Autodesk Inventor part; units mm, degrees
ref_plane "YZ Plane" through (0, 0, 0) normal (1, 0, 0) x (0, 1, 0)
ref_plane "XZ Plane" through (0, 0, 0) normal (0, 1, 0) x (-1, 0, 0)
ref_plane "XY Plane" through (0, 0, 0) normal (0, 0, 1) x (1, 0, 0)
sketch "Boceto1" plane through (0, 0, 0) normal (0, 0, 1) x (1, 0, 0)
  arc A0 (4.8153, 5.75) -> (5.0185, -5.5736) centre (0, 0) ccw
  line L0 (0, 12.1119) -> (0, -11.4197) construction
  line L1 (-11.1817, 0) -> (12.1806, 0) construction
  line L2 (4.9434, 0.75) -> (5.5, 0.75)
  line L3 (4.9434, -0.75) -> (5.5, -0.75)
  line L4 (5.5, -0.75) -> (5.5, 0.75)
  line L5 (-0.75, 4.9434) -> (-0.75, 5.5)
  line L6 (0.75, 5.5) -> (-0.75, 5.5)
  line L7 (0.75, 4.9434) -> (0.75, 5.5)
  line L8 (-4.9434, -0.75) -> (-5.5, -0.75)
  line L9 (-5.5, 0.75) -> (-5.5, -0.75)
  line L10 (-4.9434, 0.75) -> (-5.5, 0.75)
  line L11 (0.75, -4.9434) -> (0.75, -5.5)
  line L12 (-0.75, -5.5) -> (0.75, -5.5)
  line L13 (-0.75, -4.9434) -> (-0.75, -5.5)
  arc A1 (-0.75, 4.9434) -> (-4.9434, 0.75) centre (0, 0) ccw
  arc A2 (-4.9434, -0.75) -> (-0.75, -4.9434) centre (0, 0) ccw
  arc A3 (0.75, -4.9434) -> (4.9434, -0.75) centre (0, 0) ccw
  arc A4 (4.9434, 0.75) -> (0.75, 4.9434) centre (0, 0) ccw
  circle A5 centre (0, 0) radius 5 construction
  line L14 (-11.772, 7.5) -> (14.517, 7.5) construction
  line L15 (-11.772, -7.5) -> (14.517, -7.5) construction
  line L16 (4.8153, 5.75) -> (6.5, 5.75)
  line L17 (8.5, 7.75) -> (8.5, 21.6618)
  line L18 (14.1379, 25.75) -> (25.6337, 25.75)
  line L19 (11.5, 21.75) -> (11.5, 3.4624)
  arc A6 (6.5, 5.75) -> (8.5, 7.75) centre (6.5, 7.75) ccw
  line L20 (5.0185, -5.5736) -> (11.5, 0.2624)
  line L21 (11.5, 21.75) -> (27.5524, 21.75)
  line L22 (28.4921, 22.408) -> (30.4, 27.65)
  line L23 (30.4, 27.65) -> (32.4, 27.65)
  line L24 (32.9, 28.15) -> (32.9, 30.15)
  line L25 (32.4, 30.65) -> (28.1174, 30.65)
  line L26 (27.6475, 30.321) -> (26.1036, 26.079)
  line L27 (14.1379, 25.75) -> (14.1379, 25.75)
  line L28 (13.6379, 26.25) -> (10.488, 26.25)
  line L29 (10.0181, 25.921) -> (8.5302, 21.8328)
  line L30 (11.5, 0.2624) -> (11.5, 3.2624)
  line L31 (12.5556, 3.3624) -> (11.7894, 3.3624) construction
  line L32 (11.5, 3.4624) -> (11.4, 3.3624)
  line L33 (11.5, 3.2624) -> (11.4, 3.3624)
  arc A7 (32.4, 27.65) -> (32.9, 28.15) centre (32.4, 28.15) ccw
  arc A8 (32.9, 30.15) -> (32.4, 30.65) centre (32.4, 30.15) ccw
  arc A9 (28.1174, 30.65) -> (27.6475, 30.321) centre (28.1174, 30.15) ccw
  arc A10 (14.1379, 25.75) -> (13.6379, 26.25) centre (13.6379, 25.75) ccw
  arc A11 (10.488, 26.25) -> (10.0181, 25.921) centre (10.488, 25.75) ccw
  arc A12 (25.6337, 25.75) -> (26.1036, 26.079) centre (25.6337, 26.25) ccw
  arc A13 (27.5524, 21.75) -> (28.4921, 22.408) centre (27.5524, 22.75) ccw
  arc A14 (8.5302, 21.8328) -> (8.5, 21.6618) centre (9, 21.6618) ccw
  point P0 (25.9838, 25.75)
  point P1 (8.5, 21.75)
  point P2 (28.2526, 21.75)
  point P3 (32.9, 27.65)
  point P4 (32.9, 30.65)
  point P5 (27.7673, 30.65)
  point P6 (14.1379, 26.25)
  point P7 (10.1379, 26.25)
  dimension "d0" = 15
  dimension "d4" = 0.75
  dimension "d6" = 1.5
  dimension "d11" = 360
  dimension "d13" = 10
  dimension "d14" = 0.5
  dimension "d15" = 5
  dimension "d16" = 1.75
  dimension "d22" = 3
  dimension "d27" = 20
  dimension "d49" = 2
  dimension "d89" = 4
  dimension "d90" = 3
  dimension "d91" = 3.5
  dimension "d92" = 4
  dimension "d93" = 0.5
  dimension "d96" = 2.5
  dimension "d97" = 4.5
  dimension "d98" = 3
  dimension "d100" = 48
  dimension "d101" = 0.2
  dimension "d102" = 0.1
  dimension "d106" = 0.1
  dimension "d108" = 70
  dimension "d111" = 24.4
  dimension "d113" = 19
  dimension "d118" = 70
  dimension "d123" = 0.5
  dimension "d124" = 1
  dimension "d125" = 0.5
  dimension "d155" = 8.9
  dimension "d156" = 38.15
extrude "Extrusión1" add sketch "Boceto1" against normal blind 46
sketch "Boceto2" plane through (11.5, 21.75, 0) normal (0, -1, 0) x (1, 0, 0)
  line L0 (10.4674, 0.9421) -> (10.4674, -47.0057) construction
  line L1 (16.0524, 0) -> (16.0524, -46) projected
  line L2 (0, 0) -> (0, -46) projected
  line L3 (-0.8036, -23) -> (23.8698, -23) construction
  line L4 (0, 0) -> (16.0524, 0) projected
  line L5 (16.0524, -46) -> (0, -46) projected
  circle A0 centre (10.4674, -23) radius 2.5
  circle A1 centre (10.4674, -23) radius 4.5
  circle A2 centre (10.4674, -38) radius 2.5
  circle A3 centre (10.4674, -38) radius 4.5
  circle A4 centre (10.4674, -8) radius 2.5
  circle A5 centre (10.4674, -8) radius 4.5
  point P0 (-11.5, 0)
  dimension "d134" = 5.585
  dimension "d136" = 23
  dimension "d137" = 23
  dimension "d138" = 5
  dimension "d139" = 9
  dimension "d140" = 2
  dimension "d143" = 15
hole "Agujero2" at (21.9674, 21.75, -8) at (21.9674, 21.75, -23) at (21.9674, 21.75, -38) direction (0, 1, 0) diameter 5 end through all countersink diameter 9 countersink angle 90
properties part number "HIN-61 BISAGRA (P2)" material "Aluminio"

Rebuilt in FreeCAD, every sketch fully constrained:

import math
import FreeCAD as App
import Part
import Sketcher
Q = App.Units.Quantity

doc = App.newDocument("Part")
params = doc.addObject("Spreadsheet::Sheet", "Params")
for row, (alias, value) in enumerate([
    ("sketch1_radius", "1 mm"),
    ("sketch1_radius2", "2 mm"),
    ("sketch1_radius3", "5 mm"),
    ("sketch1_radius4", "7.5 mm"),
    ("sketch1_radius5", "0.5 mm"),
    ("pad1_length", "46 mm"),
    ("sketch2_diameter", "5 mm"),
    ("hole_diameter", "5 mm"),
    ("hole_csink_diameter", "9 mm"),
], start=1):
    params.set(f"A{row}", alias)
    params.set(f"B{row}", "=" + value)
    params.setAlias(f"B{row}", alias)

body = doc.addObject("PartDesign::Body", "Body")

sketch1 = doc.addObject("Sketcher::SketchObject", "Sketch")
body.addObject(sketch1)
sketch1.AttachmentSupport = (doc.XY_Plane, [""])
sketch1.MapMode = "FlatFace"
sketch1.addGeometry([
    Part.LineSegment(App.Vector(6.5, 5.75, 0), App.Vector(4.8153, 5.75, 0)),
    Part.ArcOfCircle(Part.Circle(App.Vector(0, 0, 0), App.Vector(0, 0, 1), 7.499974), math.radians(50.05573), math.radians(312.000046)),
    Part.LineSegment(App.Vector(5.0185, -5.5736, 0), App.Vector(11.5, 0.2624, 0)),
    Part.LineSegment(App.Vector(11.5, 0.2624, 0), App.Vector(11.5, 3.2624, 0)),
    Part.LineSegment(App.Vector(11.5, 3.2624, 0), App.Vector(11.4, 3.3624, 0)),
    Part.LineSegment(App.Vector(11.4, 3.3624, 0), App.Vector(11.5, 3.4624, 0)),
    Part.LineSegment(App.Vector(11.5, 3.4624, 0), App.Vector(11.5, 21.75, 0)),
    Part.LineSegment(App.Vector(11.5, 21.75, 0), App.Vector(27.5524, 21.75, 0)),
    Part.ArcOfCircle(Part.Circle(App.Vector(27.5524, 22.75, 0), App.Vector(0, 0, 1), 1), math.radians(-90), math.radians(-19.998771)),
    Part.LineSegment(App.Vector(28.4921, 22.408, 0), App.Vector(30.4, 27.65, 0)),
    Part.LineSegment(App.Vector(30.4, 27.65, 0), App.Vector(32.4, 27.65, 0)),
    Part.ArcOfCircle(Part.Circle(App.Vector(32.4, 28.15, 0), App.Vector(0, 0, 1), 0.5), math.radians(-90), math.radians(0)),
    Part.LineSegment(App.Vector(32.9, 28.15, 0), App.Vector(32.9, 30.15, 0)),
    Part.ArcOfCircle(Part.Circle(App.Vector(32.4, 30.15, 0), App.Vector(0, 0, 1), 0.5), math.radians(0), math.radians(90)),
    Part.LineSegment(App.Vector(32.4, 30.65, 0), App.Vector(28.1174, 30.65, 0)),
    Part.ArcOfCircle(Part.Circle(App.Vector(28.1174, 30.15, 0), App.Vector(0, 0, 1), 0.5), math.radians(90), math.radians(160.003188)),
    Part.LineSegment(App.Vector(27.6475, 30.321, 0), App.Vector(26.1036, 26.079, 0)),
    Part.ArcOfCircle(Part.Circle(App.Vector(25.6337, 26.25, 0), App.Vector(0, 0, 1), 0.5), math.radians(-90), math.radians(-19.996812)),
    Part.LineSegment(App.Vector(25.6337, 25.75, 0), App.Vector(14.1379, 25.75, 0)),
    Part.ArcOfCircle(Part.Circle(App.Vector(13.6379, 25.75, 0), App.Vector(0, 0, 1), 0.5), math.radians(0), math.radians(90)),
    Part.LineSegment(App.Vector(13.6379, 26.25, 0), App.Vector(10.488, 26.25, 0)),
    Part.ArcOfCircle(Part.Circle(App.Vector(10.488, 25.75, 0), App.Vector(0, 0, 1), 0.5), math.radians(90), math.radians(160.003188)),
    Part.LineSegment(App.Vector(10.0181, 25.921, 0), App.Vector(8.5302, 21.8328, 0)),
    Part.ArcOfCircle(Part.Circle(App.Vector(9.001503, 21.661397, 0), App.Vector(0, 0, 1), 0.501503), math.radians(160.014765), math.radians(179.953984)),
    Part.LineSegment(App.Vector(8.5, 21.6618, 0), App.Vector(8.5, 7.75, 0)),
    Part.ArcOfCircle(Part.Circle(App.Vector(6.5, 7.75, 0), App.Vector(0, 0, 1), 2), math.radians(-90), math.radians(0)),
    Part.ArcOfCircle(Part.Circle(App.Vector(0, 0, 0), App.Vector(0, 0, 1), 4.99997), math.radians(8.626978), math.radians(81.373022)),
    Part.LineSegment(App.Vector(4.9434, 0.75, 0), App.Vector(5.5, 0.75, 0)),
    Part.LineSegment(App.Vector(5.5, 0.75, 0), App.Vector(5.5, -0.75, 0)),
    Part.LineSegment(App.Vector(5.5, -0.75, 0), App.Vector(4.9434, -0.75, 0)),
    Part.ArcOfCircle(Part.Circle(App.Vector(0, 0, 0), App.Vector(0, 0, 1), 4.99997), math.radians(-81.373022), math.radians(-8.626978)),
    Part.LineSegment(App.Vector(0.75, -4.9434, 0), App.Vector(0.75, -5.5, 0)),
    Part.LineSegment(App.Vector(0.75, -5.5, 0), App.Vector(-0.75, -5.5, 0)),
    Part.LineSegment(App.Vector(-0.75, -5.5, 0), App.Vector(-0.75, -4.9434, 0)),
    Part.ArcOfCircle(Part.Circle(App.Vector(0, 0, 0), App.Vector(0, 0, 1), 4.99997), math.radians(-171.373022), math.radians(-98.626978)),
    Part.LineSegment(App.Vector(-4.9434, -0.75, 0), App.Vector(-5.5, -0.75, 0)),
    Part.LineSegment(App.Vector(-5.5, -0.75, 0), App.Vector(-5.5, 0.75, 0)),
    Part.LineSegment(App.Vector(-5.5, 0.75, 0), App.Vector(-4.9434, 0.75, 0)),
    Part.ArcOfCircle(Part.Circle(App.Vector(0, 0, 0), App.Vector(0, 0, 1), 4.99997), math.radians(98.626978), math.radians(171.373022)),
    Part.LineSegment(App.Vector(-0.75, 4.9434, 0), App.Vector(-0.75, 5.5, 0)),
    Part.LineSegment(App.Vector(-0.75, 5.5, 0), App.Vector(0.75, 5.5, 0)),
    Part.LineSegment(App.Vector(0.75, 5.5, 0), App.Vector(0.75, 4.9434, 0)),
], False)
sketch1.addConstraint([
    Sketcher.Constraint("Coincident", 0, 2, 1, 1),
    Sketcher.Constraint("Tangent", 1, 2, 2, 1),
    Sketcher.Constraint("Coincident", 2, 2, 3, 1),
    Sketcher.Constraint("Coincident", 3, 2, 4, 1),
    Sketcher.Constraint("Coincident", 4, 2, 5, 1),
    Sketcher.Constraint("Coincident", 5, 2, 6, 1),
    Sketcher.Constraint("Coincident", 6, 2, 7, 1),
    Sketcher.Constraint("Tangent", 7, 2, 8, 1),
    Sketcher.Constraint("Tangent", 8, 2, 9, 1),
    Sketcher.Constraint("Coincident", 9, 2, 10, 1),
    Sketcher.Constraint("Tangent", 10, 2, 11, 1),
    Sketcher.Constraint("Tangent", 11, 2, 12, 1),
    Sketcher.Constraint("Tangent", 12, 2, 13, 1),
    Sketcher.Constraint("Tangent", 13, 2, 14, 1),
    Sketcher.Constraint("Tangent", 14, 2, 15, 1),
    Sketcher.Constraint("Tangent", 15, 2, 16, 1),
    Sketcher.Constraint("Tangent", 16, 2, 17, 2),
    Sketcher.Constraint("Tangent", 17, 1, 18, 1),
    Sketcher.Constraint("Coincident", 18, 2, 19, 1),
    Sketcher.Constraint("Tangent", 19, 2, 20, 1),
    Sketcher.Constraint("Tangent", 20, 2, 21, 1),
    Sketcher.Constraint("Tangent", 21, 2, 22, 1),
    Sketcher.Constraint("Tangent", 22, 2, 23, 1),
    Sketcher.Constraint("Coincident", 23, 2, 24, 1),
    Sketcher.Constraint("Tangent", 24, 2, 25, 2),
    Sketcher.Constraint("Tangent", 25, 1, 0, 1),
    Sketcher.Constraint("Coincident", 26, 1, 27, 1),
    Sketcher.Constraint("Coincident", 27, 2, 28, 1),
    Sketcher.Constraint("Coincident", 28, 2, 29, 1),
    Sketcher.Constraint("Coincident", 29, 2, 30, 2),
    Sketcher.Constraint("Coincident", 30, 1, 31, 1),
    Sketcher.Constraint("Coincident", 31, 2, 32, 1),
    Sketcher.Constraint("Coincident", 32, 2, 33, 1),
    Sketcher.Constraint("Coincident", 33, 2, 34, 2),
    Sketcher.Constraint("Coincident", 34, 1, 35, 1),
    Sketcher.Constraint("Coincident", 35, 2, 36, 1),
    Sketcher.Constraint("Coincident", 36, 2, 37, 1),
    Sketcher.Constraint("Coincident", 37, 2, 38, 2),
    Sketcher.Constraint("Coincident", 38, 1, 39, 1),
    Sketcher.Constraint("Coincident", 39, 2, 40, 1),
    Sketcher.Constraint("Coincident", 40, 2, 41, 1),
    Sketcher.Constraint("Coincident", 41, 2, 26, 2),
    Sketcher.Constraint("Horizontal", 0),
    Sketcher.Constraint("Vertical", 3),
    Sketcher.Constraint("Vertical", 6),
    Sketcher.Constraint("Horizontal", 7),
    Sketcher.Constraint("Horizontal", 10),
    Sketcher.Constraint("Vertical", 12),
    Sketcher.Constraint("Horizontal", 14),
    Sketcher.Constraint("Horizontal", 18),
    Sketcher.Constraint("Horizontal", 20),
    Sketcher.Constraint("Vertical", 24),
    Sketcher.Constraint("Horizontal", 27),
    Sketcher.Constraint("Vertical", 28),
    Sketcher.Constraint("Horizontal", 29),
    Sketcher.Constraint("Vertical", 31),
    Sketcher.Constraint("Horizontal", 32),
    Sketcher.Constraint("Vertical", 33),
    Sketcher.Constraint("Horizontal", 35),
    Sketcher.Constraint("Vertical", 36),
    Sketcher.Constraint("Horizontal", 37),
    Sketcher.Constraint("Vertical", 39),
    Sketcher.Constraint("Horizontal", 40),
    Sketcher.Constraint("Vertical", 41),
    Sketcher.Constraint("Coincident", 1, 3, -1, 1),
    Sketcher.Constraint("Coincident", 26, 3, -1, 1),
    Sketcher.Constraint("Coincident", 30, 3, -1, 1),
    Sketcher.Constraint("Coincident", 34, 3, -1, 1),
    Sketcher.Constraint("Coincident", 38, 3, -1, 1),
    Sketcher.Constraint("Equal", 11, 13),
    Sketcher.Constraint("Equal", 13, 15),
    Sketcher.Constraint("Equal", 15, 17),
    Sketcher.Constraint("Equal", 17, 19),
    Sketcher.Constraint("Equal", 19, 21),
    Sketcher.Constraint("Equal", 26, 30),
    Sketcher.Constraint("Equal", 30, 34),
    Sketcher.Constraint("Equal", 34, 38),
    Sketcher.Constraint("Symmetric", 27, 2, 35, 2, -1, 1),
    Sketcher.Constraint("Symmetric", 31, 2, 39, 2, -1, 1),
    Sketcher.Constraint("Perpendicular", 4, 5),
    Sketcher.Constraint("Parallel", 9, 16),
    Sketcher.Constraint("Parallel", 16, 22),
    Sketcher.Constraint("Horizontal", 21, 3, 17, 1),
    Sketcher.Constraint("Horizontal", 30, 1, 33, 2),
    Sketcher.Constraint("Horizontal", 29, 2, 34, 1),
    Sketcher.Constraint("Horizontal", 27, 2, 36, 2),
    Sketcher.Constraint("Horizontal", 38, 1, 41, 2),
    Sketcher.Constraint("Vertical", 3, 2, 5, 2),
    Sketcher.Constraint("Equal", 10, 12),
    Sketcher.Constraint("Equal", 40, 28),
    Sketcher.Constraint("Equal", 37, 31),
    Sketcher.Constraint("Equal", 4, 5),
    Sketcher.Constraint("Radius", 8, Q("1 mm")),
    Sketcher.Constraint("Radius", 25, Q("2 mm")),
    Sketcher.Constraint("Radius", 26, Q("5 mm")),
    Sketcher.Constraint("Radius", 1, Q("7.5 mm")),
    Sketcher.Constraint("Radius", 11, Q("0.5 mm")),
    Sketcher.Constraint("DistanceX", 10, 1, 10, 2, Q("2 mm")),
    Sketcher.Constraint("DistanceY", 3, 1, 3, 2, Q("3 mm")),
    Sketcher.Constraint("Angle", 9, Q("70.0003 deg")),
    Sketcher.Constraint("DistanceX", 32, 2, 32, 1, Q("1.5 mm")),
    Sketcher.Constraint("DistanceY", 8, 3, 19, 3, Q("3 mm")),
    Sketcher.Constraint("DistanceY", 25, 3, 8, 3, Q("15 mm")),
    Sketcher.Constraint("DistanceX", 25, 3, 2, 2, Q("5 mm")),
    Sketcher.Constraint("DistanceY", 27, 2, 0, 2, Q("5 mm")),
    Sketcher.Constraint("DistanceX", 27, 2, 25, 1, Q("1 mm")),
    Sketcher.Constraint("DistanceX", 4, 2, 3, 2, Q("0.1 mm")),
    Sketcher.Constraint("Angle", 2, Q("42.0002 deg")),
    Sketcher.Constraint("DistanceX", 20, 2, 20, 1, Q("3.15 mm")),
    Sketcher.Constraint("DistanceX", -1, 1, 11, 3, Q("32.4 mm")),
    Sketcher.Constraint("DistanceX", -1, 1, 25, 3, Q("6.5 mm")),
    Sketcher.Constraint("Radius", 23, Q("0.5015 mm")),
    Sketcher.Constraint("DistanceY", 8, 3, 11, 3, Q("5.4 mm")),
    Sketcher.Constraint("DistanceX", 14, 2, 14, 1, Q("4.2826 mm")),
    Sketcher.Constraint("DistanceX", 18, 2, 18, 1, Q("11.4958 mm")),
    Sketcher.Constraint("DistanceY", 24, 2, 24, 1, Q("13.9118 mm")),
])
sketch1.setExpression("Constraints[92]", "Params.sketch1_radius")
sketch1.setExpression("Constraints[93]", "Params.sketch1_radius2")
sketch1.setExpression("Constraints[94]", "Params.sketch1_radius3")
sketch1.setExpression("Constraints[95]", "Params.sketch1_radius4")
sketch1.setExpression("Constraints[96]", "Params.sketch1_radius5")
pad1 = doc.addObject("PartDesign::Pad", "Pad")
body.addObject(pad1)
pad1.Profile = sketch1
pad1.setExpression("Length", "Params.pad1_length")
pad1.Reversed = True

sketch2 = doc.addObject("Sketcher::SketchObject", "Sketch001")
body.addObject(sketch2)
sketch2.AttachmentSupport = (doc.XZ_Plane, [""])
sketch2.MapMode = "FlatFace"
sketch2.AttachmentOffset = App.Placement(App.Vector(0, 0, -21.75), App.Rotation())
sketch2.addGeometry([
    Part.Circle(App.Vector(21.9674, -8, 0), App.Vector(0, 0, 1), 2.5),
    Part.Circle(App.Vector(21.9674, -23, 0), App.Vector(0, 0, 1), 2.5),
    Part.Circle(App.Vector(21.9674, -38, 0), App.Vector(0, 0, 1), 2.5),
], False)
sketch2.addConstraint([
    Sketcher.Constraint("Equal", 0, 1),
    Sketcher.Constraint("Equal", 1, 2),
    Sketcher.Constraint("Vertical", 0, 3, 1, 3),
    Sketcher.Constraint("Vertical", 1, 3, 2, 3),
    Sketcher.Constraint("Diameter", 0, Q("5 mm")),
    Sketcher.Constraint("DistanceY", 0, 3, -1, 1, Q("8 mm")),
    Sketcher.Constraint("DistanceY", 1, 3, -1, 1, Q("23 mm")),
    Sketcher.Constraint("DistanceY", 2, 3, -1, 1, Q("38 mm")),
    Sketcher.Constraint("DistanceX", -1, 1, 0, 3, Q("21.9674 mm")),
])
sketch2.setExpression("Constraints[4]", "Params.sketch2_diameter")
doc.recompute()
hole = doc.addObject("PartDesign::Hole", "Hole")
body.addObject(hole)
hole.Profile = sketch2
hole.ThreadType = "None"
hole.setExpression("Diameter", "Params.hole_diameter")
hole.DepthType = "ThroughAll"
hole.HoleCutType = "Countersink"
hole.setExpression("HoleCutDiameter", "Params.hole_csink_diameter")
hole.HoleCutCountersinkAngle = 90

doc.recompute()
